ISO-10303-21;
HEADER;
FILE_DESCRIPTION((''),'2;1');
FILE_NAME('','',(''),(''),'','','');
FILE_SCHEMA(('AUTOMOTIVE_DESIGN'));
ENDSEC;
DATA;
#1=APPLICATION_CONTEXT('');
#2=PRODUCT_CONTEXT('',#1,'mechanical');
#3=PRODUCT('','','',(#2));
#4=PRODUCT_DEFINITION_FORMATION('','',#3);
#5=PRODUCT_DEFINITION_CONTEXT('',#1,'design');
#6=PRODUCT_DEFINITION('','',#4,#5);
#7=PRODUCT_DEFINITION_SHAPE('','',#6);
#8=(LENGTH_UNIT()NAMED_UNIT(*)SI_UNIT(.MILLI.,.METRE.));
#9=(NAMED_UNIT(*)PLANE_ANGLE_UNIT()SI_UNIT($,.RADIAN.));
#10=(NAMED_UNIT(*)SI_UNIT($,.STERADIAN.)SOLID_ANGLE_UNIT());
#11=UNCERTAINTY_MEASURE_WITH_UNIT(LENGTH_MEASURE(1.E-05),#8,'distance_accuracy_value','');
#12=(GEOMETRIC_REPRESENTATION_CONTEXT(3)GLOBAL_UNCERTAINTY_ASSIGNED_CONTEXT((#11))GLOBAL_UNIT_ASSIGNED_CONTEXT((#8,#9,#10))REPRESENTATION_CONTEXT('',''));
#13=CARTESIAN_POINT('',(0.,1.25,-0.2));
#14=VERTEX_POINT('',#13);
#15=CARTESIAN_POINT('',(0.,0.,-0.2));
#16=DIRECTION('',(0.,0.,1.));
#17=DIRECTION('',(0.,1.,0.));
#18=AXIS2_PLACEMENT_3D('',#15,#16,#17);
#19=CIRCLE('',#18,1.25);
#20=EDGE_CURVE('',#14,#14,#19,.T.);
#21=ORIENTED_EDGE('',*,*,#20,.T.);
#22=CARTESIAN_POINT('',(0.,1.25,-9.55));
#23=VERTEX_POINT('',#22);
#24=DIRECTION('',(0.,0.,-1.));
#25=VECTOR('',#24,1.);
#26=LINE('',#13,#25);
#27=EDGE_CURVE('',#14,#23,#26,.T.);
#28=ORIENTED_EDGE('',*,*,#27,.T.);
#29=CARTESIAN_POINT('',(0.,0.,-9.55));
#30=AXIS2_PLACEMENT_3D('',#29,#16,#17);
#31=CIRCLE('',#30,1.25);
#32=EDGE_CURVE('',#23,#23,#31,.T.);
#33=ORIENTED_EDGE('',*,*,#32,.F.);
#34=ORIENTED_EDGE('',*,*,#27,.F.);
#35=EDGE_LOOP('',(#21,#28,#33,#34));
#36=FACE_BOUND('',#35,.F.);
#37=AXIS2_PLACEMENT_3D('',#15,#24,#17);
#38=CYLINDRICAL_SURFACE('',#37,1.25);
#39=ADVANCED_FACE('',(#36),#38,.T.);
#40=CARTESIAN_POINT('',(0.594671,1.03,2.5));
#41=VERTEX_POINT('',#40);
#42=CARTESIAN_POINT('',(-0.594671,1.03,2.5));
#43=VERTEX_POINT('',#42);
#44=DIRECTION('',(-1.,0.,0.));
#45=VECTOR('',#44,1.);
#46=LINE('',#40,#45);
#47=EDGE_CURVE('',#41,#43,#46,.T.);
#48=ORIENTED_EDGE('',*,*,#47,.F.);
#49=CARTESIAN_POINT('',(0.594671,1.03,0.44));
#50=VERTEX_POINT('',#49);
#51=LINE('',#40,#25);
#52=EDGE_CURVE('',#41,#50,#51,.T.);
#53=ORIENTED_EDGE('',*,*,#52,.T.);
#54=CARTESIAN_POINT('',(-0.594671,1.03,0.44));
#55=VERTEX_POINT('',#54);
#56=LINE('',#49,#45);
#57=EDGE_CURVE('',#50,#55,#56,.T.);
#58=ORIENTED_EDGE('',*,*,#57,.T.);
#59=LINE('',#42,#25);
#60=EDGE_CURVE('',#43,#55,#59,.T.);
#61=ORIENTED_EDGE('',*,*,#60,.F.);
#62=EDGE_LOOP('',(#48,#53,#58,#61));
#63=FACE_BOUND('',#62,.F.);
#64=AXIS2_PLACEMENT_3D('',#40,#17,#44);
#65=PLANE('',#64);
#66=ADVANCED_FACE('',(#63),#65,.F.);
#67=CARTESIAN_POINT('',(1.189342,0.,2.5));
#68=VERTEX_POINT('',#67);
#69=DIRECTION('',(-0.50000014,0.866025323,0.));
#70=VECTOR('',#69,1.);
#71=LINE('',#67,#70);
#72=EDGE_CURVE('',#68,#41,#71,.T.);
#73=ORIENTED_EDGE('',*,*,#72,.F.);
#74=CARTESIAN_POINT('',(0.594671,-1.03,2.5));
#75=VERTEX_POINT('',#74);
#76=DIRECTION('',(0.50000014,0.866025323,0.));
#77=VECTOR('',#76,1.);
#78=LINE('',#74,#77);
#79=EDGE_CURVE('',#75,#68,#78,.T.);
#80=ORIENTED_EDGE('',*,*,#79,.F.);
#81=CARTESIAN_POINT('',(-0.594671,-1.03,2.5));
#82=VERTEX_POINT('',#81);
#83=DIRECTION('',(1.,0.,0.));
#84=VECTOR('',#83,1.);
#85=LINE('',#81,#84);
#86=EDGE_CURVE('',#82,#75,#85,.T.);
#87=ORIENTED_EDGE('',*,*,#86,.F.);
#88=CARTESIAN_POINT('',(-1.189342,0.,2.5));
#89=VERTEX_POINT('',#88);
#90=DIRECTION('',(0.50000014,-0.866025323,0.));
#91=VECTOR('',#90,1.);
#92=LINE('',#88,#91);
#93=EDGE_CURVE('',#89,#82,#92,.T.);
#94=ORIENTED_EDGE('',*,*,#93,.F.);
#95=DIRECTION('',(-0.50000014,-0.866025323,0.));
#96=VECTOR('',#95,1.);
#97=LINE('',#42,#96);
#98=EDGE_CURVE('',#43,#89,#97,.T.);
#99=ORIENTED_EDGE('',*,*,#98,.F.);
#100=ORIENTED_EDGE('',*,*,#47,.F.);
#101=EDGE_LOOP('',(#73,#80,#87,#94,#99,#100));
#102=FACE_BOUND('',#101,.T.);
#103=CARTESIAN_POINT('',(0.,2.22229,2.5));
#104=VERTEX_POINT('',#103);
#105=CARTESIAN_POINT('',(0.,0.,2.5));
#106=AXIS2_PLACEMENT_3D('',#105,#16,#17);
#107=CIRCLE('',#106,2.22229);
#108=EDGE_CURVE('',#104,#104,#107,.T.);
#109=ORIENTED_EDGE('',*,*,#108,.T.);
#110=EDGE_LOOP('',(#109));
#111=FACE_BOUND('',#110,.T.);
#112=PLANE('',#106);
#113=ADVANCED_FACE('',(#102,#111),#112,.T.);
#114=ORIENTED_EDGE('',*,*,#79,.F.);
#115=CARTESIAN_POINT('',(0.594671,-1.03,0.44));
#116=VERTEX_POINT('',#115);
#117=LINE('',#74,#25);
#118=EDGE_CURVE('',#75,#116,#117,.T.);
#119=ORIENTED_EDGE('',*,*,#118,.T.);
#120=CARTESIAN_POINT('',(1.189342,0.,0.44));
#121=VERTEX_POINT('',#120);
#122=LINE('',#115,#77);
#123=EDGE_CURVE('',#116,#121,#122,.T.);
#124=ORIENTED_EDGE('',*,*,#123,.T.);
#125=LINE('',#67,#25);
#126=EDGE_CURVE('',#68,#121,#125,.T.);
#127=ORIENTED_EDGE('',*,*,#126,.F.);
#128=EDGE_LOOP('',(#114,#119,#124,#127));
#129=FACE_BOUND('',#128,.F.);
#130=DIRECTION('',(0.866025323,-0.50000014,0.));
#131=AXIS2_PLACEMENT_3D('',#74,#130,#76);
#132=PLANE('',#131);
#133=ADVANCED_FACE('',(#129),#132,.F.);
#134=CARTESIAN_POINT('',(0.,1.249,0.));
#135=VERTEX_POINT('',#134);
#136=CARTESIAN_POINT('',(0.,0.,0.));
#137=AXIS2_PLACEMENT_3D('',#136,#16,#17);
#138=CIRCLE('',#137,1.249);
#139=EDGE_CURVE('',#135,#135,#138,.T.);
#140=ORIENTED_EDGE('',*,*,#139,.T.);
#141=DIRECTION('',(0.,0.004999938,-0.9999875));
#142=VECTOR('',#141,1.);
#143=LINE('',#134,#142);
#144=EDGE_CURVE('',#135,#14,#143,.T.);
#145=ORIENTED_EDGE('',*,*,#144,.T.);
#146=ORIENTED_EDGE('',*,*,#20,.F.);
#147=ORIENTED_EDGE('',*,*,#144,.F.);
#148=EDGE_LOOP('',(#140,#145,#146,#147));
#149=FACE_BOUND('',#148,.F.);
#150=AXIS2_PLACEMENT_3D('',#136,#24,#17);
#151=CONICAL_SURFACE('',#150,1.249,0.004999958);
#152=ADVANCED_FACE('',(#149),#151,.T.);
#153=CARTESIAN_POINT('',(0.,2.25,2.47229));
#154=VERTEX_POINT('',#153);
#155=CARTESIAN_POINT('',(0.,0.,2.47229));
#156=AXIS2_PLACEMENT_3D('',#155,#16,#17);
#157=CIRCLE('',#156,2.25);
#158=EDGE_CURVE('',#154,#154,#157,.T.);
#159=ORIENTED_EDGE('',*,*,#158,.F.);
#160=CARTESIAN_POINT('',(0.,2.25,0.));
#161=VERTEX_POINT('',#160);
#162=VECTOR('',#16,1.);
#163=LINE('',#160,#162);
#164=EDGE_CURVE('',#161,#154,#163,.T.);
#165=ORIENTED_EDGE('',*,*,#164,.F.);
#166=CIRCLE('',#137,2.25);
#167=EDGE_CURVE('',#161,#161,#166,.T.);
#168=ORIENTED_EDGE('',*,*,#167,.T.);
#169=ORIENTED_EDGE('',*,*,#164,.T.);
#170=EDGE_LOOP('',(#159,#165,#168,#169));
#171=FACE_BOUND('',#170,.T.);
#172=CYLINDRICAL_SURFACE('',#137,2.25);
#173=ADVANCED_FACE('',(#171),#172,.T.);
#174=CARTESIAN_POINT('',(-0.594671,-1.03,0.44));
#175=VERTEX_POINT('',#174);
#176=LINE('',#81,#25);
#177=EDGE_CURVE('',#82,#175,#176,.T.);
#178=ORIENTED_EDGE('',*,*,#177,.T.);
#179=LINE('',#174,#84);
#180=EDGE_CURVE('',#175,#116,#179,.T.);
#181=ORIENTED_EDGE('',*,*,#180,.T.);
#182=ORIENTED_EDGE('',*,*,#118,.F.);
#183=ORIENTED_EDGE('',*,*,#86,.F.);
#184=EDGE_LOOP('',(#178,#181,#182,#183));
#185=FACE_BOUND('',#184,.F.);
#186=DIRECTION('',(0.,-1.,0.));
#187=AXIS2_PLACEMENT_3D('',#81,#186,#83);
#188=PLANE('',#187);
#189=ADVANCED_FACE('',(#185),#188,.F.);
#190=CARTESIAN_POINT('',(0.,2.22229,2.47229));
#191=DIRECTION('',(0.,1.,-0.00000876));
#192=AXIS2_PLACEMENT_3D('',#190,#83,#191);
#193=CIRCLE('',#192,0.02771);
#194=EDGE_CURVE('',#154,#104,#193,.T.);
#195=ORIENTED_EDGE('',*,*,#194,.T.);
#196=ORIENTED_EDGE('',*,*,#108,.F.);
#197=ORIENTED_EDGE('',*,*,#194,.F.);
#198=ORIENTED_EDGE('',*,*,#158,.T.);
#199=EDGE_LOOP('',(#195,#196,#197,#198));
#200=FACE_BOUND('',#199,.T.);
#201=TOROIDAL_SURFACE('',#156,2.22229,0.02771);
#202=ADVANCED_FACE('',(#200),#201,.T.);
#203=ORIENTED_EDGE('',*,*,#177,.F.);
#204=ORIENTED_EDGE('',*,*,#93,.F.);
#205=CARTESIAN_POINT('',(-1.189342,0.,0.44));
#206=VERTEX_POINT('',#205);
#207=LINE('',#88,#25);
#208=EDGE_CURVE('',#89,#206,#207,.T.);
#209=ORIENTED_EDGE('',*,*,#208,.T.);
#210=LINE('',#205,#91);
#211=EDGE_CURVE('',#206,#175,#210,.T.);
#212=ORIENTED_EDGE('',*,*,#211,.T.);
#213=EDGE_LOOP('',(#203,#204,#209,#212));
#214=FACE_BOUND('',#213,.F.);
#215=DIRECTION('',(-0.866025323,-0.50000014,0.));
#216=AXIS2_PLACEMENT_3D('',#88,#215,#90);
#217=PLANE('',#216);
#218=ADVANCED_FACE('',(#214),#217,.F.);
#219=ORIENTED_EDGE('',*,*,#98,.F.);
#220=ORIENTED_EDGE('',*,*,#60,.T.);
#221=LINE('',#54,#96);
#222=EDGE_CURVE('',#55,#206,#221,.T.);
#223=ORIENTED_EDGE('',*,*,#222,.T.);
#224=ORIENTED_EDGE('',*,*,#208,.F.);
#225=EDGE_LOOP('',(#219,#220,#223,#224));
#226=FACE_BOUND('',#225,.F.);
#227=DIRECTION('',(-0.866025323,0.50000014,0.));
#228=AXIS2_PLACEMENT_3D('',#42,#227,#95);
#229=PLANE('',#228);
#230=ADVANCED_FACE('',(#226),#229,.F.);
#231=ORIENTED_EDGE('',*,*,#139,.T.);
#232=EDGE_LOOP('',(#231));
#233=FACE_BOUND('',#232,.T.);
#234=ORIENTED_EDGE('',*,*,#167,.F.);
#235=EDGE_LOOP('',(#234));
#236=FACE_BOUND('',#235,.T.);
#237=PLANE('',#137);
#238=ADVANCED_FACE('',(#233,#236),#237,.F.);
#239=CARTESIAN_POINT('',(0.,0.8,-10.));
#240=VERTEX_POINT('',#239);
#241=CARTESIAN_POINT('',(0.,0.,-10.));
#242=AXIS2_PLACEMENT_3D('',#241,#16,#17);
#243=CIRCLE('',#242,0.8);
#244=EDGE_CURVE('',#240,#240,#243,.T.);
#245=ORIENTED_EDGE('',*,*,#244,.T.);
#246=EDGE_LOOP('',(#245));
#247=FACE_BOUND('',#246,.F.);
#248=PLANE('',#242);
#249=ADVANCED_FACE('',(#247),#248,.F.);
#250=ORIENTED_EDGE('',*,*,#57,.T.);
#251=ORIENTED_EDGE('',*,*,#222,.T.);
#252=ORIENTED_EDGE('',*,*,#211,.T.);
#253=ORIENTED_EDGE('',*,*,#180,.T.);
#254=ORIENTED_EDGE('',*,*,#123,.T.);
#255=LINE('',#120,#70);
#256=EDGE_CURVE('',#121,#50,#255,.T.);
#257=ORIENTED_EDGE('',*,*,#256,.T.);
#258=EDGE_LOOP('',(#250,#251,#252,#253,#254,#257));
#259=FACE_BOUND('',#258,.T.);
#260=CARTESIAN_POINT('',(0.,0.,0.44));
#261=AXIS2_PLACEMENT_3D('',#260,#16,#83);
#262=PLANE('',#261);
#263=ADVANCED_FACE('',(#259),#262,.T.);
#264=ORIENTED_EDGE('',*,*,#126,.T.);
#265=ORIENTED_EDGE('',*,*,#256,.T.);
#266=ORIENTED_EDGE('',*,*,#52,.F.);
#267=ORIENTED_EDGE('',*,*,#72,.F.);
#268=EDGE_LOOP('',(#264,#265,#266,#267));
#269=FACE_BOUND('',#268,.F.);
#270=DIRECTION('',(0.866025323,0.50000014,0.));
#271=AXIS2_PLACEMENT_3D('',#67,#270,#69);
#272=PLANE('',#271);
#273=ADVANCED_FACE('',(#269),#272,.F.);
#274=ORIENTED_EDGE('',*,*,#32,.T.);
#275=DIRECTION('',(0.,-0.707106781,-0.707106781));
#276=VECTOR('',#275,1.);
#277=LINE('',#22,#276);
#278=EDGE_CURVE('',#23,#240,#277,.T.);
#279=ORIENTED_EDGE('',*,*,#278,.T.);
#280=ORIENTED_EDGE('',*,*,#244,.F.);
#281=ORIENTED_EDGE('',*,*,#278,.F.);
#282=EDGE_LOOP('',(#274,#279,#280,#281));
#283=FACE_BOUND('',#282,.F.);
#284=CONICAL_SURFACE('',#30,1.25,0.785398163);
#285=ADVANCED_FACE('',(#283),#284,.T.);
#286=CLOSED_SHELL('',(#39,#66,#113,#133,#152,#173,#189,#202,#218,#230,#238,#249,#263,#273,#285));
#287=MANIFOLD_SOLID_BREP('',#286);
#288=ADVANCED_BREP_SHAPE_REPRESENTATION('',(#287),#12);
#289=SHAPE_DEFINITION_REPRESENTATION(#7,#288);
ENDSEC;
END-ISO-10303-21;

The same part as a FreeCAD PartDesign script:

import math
import FreeCAD as App
import Part
import Sketcher
from FreeCAD import Vector
Q = App.Units.Quantity

doc = App.newDocument("Part")
params = doc.addObject("Spreadsheet::Sheet", "Params")
for row, (alias, value) in enumerate([
    ("sketch1_width", "0.8 mm"),
    ("sketch1_height", "12.5 mm"),
    ("sketch1_height2", "9.35 mm"),
    ("revolution_angle", "360 deg"),
    ("pocket1_length", "2.06 mm"),
], start=1):
    params.set(f"A{row}", alias)
    params.set(f"B{row}", "=" + value)
    params.setAlias(f"B{row}", alias)

body = doc.addObject("PartDesign::Body", "Body")

# Sketch on YZ plane
sketch1 = body.newObject("Sketcher::SketchObject", "Sketch")
sketch1.AttachmentSupport = (doc.getObject("YZ_Plane"), [""])
sketch1.MapMode = "FlatFace"
sketch1.addGeometry([
    Part.LineSegment(Vector(1.249, 0, 0), Vector(2.25, 0, 0)),  # 0
    Part.LineSegment(Vector(2.25, 0, 0), Vector(2.25, 2.47229, 0)),  # 1
    Part.ArcOfCircle(Part.Circle(Vector(2.22229, 2.47229, 0), Vector(0, 0, 1), 0.02771), math.radians(-0.000502), math.radians(90.000502)),  # 2
    Part.LineSegment(Vector(2.22229, 2.5, 0), Vector(0, 2.5, 0)),  # 3
    Part.LineSegment(Vector(0, 2.5, 0), Vector(0, -10, 0)),  # 4
    Part.LineSegment(Vector(0, -10, 0), Vector(0.8, -10, 0)),  # 5
    Part.LineSegment(Vector(0.8, -10, 0), Vector(1.25, -9.55, 0)),  # 6
    Part.LineSegment(Vector(1.25, -9.55, 0), Vector(1.25, -0.2, 0)),  # 7
    Part.LineSegment(Vector(1.25, -0.2, 0), Vector(1.249, 0, 0)),  # 8
], False)
sketch1.addConstraint([
    Sketcher.Constraint("Coincident", 0, 2, 1, 1),
    Sketcher.Constraint("Coincident", 1, 2, 2, 1),
    Sketcher.Constraint("Coincident", 2, 2, 3, 1),
    Sketcher.Constraint("Coincident", 3, 2, 4, 1),
    Sketcher.Constraint("Coincident", 4, 2, 5, 1),
    Sketcher.Constraint("Coincident", 5, 2, 6, 1),
    Sketcher.Constraint("Coincident", 6, 2, 7, 1),
    Sketcher.Constraint("Coincident", 7, 2, 8, 1),
    Sketcher.Constraint("Coincident", 8, 2, 0, 1),
    Sketcher.Constraint("Horizontal", 0),
    Sketcher.Constraint("Vertical", 1),
    Sketcher.Constraint("Horizontal", 3),
    Sketcher.Constraint("Vertical", 4),
    Sketcher.Constraint("Horizontal", 5),
    Sketcher.Constraint("Vertical", 7),
    Sketcher.Constraint("PointOnObject", 0, 2, -1),
    Sketcher.Constraint("PointOnObject", 3, 2, -2),
    Sketcher.Constraint("Horizontal", 2, 3, 1, 2),
    Sketcher.Constraint("Angle", 6, Q("45 deg")),
    Sketcher.Constraint("DistanceX", 5, 1, 5, 2, 0.8),
    Sketcher.Constraint("DistanceY", 4, 2, 4, 1, 12.5),
    Sketcher.Constraint("DistanceY", 4, 2, -1, 1, 10.0),
    Sketcher.Constraint("DistanceX", 6, 2, 0, 2, 1.0),
    Sketcher.Constraint("DistanceY", 7, 1, 7, 2, 9.35),
    Sketcher.Constraint("DistanceY", 7, 2, -1, 1, 0.2),
    Sketcher.Constraint("DistanceX", 0, 1, 0, 2, 1.001),
    Sketcher.Constraint("Radius", 2, 0.02771),
    Sketcher.Constraint("DistanceX", 3, 2, 3, 1, 2.22229),
])
sketch1.setExpression("Constraints[19]", "Params.sketch1_width")
sketch1.setExpression("Constraints[20]", "Params.sketch1_height")
sketch1.setExpression("Constraints[23]", "Params.sketch1_height2")
revolution = body.newObject("PartDesign::Revolution", "Revolution")
revolution.Profile = sketch1
revolution.ReferenceAxis = (sketch1, ["V_Axis"])
revolution.setExpression("Angle", "Params.revolution_angle")

# Sketch on XY plane
sketch2 = body.newObject("Sketcher::SketchObject", "Sketch001")
sketch2.AttachmentSupport = (doc.getObject("XY_Plane"), [""])
sketch2.MapMode = "FlatFace"
sketch2.AttachmentOffset = App.Placement(Vector(0, 0, 2.5), App.Rotation())
sketch2.addGeometry([
    Part.LineSegment(Vector(1.189342, 0, 0), Vector(0.594671, 1.03, 0)),  # 0
    Part.LineSegment(Vector(0.594671, 1.03, 0), Vector(-0.594671, 1.03, 0)),  # 1
    Part.LineSegment(Vector(-0.594671, 1.03, 0), Vector(-1.189342, 0, 0)),  # 2
    Part.LineSegment(Vector(-1.189342, 0, 0), Vector(-0.594671, -1.03, 0)),  # 3
    Part.LineSegment(Vector(-0.594671, -1.03, 0), Vector(0.594671, -1.03, 0)),  # 4
    Part.LineSegment(Vector(0.594671, -1.03, 0), Vector(1.189342, 0, 0)),  # 5
], False)
sketch2.addConstraint([
    Sketcher.Constraint("Coincident", 0, 2, 1, 1),
    Sketcher.Constraint("Coincident", 1, 2, 2, 1),
    Sketcher.Constraint("Coincident", 2, 2, 3, 1),
    Sketcher.Constraint("Coincident", 3, 2, 4, 1),
    Sketcher.Constraint("Coincident", 4, 2, 5, 1),
    Sketcher.Constraint("Coincident", 5, 2, 0, 1),
    Sketcher.Constraint("Horizontal", 1),
    Sketcher.Constraint("Horizontal", 4),
    Sketcher.Constraint("Symmetric", 0, 2, 3, 2, -1, 1),
    Sketcher.Constraint("Symmetric", 2, 2, 5, 2, -1, 1),
    Sketcher.Constraint("PointOnObject", 2, 2, -1),
    Sketcher.Constraint("Parallel", 2, 5),
    Sketcher.Constraint("Vertical", 1, 2, 3, 2),
    Sketcher.Constraint("Angle", 0, Q("120.000009 deg")),
    Sketcher.Constraint("DistanceY", -1, 1, 0, 2, 1.03),
    Sketcher.Constraint("DistanceX", 1, 2, 1, 1, 1.189342),
])
pocket1 = body.newObject("PartDesign::Pocket", "Pocket")
pocket1.Profile = sketch2
pocket1.setExpression("Length", "Params.pocket1_length")

doc.recompute()
